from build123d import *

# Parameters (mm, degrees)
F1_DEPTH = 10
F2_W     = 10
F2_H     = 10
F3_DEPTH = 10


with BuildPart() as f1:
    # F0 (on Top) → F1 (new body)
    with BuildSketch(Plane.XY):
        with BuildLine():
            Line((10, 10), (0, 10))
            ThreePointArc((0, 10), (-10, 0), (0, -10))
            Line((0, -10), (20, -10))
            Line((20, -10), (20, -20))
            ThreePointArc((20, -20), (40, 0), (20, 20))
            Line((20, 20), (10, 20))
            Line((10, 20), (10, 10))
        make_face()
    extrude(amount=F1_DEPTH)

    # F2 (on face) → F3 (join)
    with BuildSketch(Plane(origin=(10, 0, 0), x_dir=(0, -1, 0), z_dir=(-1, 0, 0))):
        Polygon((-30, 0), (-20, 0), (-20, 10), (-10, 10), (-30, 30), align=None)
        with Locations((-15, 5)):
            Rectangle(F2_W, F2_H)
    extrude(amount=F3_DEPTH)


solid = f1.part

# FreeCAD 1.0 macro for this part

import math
import FreeCAD as App
import Part
import Sketcher
from FreeCAD import Vector
Q = App.Units.Quantity

doc = App.newDocument("Part")
body = doc.addObject("PartDesign::Body", "Body")

# Sketch on XY plane
sketch1 = body.newObject("Sketcher::SketchObject", "Sketch")
sketch1.AttachmentSupport = (doc.getObject("XY_Plane"), [""])
sketch1.MapMode = "FlatFace"
sketch1.addGeometry([
    Part.LineSegment(Vector(10, 10, 0), Vector(0, 10, 0)),  # 0
    Part.ArcOfCircle(Part.Circle(Vector(0, 0, 0), Vector(0, 0, 1), 10), math.radians(90), math.radians(270)),  # 1
    Part.LineSegment(Vector(0, -10, 0), Vector(20, -10, 0)),  # 2
    Part.LineSegment(Vector(20, -10, 0), Vector(20, -20, 0)),  # 3
    Part.ArcOfCircle(Part.Circle(Vector(20, 0, 0), Vector(0, 0, 1), 20), math.radians(-90), math.radians(90)),  # 4
    Part.LineSegment(Vector(20, 20, 0), Vector(10, 20, 0)),  # 5
    Part.LineSegment(Vector(10, 20, 0), Vector(10, 10, 0)),  # 6
], False)
sketch1.addConstraint([
    Sketcher.Constraint("Tangent", 0, 2, 1, 1),
    Sketcher.Constraint("Tangent", 1, 2, 2, 1),
    Sketcher.Constraint("Coincident", 2, 2, 3, 1),
    Sketcher.Constraint("Coincident", 3, 2, 4, 1),
    Sketcher.Constraint("Tangent", 4, 2, 5, 1),
    Sketcher.Constraint("Coincident", 5, 2, 6, 1),
    Sketcher.Constraint("Coincident", 6, 2, 0, 1),
    Sketcher.Constraint("Horizontal", 0),
    Sketcher.Constraint("Horizontal", 2),
    Sketcher.Constraint("Vertical", 3),
    Sketcher.Constraint("Horizontal", 5),
    Sketcher.Constraint("Vertical", 6),
    Sketcher.Constraint("Coincident", 1, 3, -1, 1),
    Sketcher.Constraint("Symmetric", 3, 2, 4, 2, -1),
    Sketcher.Constraint("Equal", 0, 5),
    Sketcher.Constraint("Equal", 5, 3),
    Sketcher.Constraint("Radius", 1, Q("10 mm")),
    Sketcher.Constraint("Radius", 4, Q("20 mm")),
])
pad1 = body.newObject("PartDesign::Pad", "Pad")
pad1.Profile = sketch1
pad1.Length = 10

# Sketch on YZ plane
sketch2 = body.newObject("Sketcher::SketchObject", "Sketch001")
sketch2.AttachmentSupport = (doc.getObject("YZ_Plane"), [""])
sketch2.MapMode = "FlatFace"
sketch2.AttachmentOffset = App.Placement(Vector(0, 0, 10), App.Rotation())
sketch2.addGeometry([
    Part.LineSegment(Vector(30, 0, 0), Vector(10, 0, 0)),
    Part.LineSegment(Vector(10, 0, 0), Vector(10, 10, 0)),
    Part.LineSegment(Vector(10, 10, 0), Vector(30, 30, 0)),
    Part.LineSegment(Vector(30, 30, 0), Vector(30, 0, 0)),
], False)
sketch2.addConstraint([
    Sketcher.Constraint("Coincident", 0, 2, 1, 1),
    Sketcher.Constraint("Coincident", 1, 2, 2, 1),
    Sketcher.Constraint("Coincident", 2, 2, 3, 1),
    Sketcher.Constraint("Coincident", 3, 2, 0, 1),
    Sketcher.Constraint("Horizontal", 0),
    Sketcher.Constraint("Vertical", 1),
    Sketcher.Constraint("Vertical", 3),
    Sketcher.Constraint("PointOnObject", 0, 2, -1),
    Sketcher.Constraint("DistanceX", 0, 2, 0, 1, Q("20 mm")),
    Sketcher.Constraint("DistanceY", 1, 1, 1, 2, Q("10 mm")),
    Sketcher.Constraint("DistanceY", 3, 2, 3, 1, Q("30 mm")),
    Sketcher.Constraint("DistanceX", -1, 1, 0, 2, Q("10 mm")),
])
pad2 = body.newObject("PartDesign::Pad", "Pad001")
pad2.Profile = sketch2
pad2.Length = 10
pad2.Reversed = True

doc.recompute()
